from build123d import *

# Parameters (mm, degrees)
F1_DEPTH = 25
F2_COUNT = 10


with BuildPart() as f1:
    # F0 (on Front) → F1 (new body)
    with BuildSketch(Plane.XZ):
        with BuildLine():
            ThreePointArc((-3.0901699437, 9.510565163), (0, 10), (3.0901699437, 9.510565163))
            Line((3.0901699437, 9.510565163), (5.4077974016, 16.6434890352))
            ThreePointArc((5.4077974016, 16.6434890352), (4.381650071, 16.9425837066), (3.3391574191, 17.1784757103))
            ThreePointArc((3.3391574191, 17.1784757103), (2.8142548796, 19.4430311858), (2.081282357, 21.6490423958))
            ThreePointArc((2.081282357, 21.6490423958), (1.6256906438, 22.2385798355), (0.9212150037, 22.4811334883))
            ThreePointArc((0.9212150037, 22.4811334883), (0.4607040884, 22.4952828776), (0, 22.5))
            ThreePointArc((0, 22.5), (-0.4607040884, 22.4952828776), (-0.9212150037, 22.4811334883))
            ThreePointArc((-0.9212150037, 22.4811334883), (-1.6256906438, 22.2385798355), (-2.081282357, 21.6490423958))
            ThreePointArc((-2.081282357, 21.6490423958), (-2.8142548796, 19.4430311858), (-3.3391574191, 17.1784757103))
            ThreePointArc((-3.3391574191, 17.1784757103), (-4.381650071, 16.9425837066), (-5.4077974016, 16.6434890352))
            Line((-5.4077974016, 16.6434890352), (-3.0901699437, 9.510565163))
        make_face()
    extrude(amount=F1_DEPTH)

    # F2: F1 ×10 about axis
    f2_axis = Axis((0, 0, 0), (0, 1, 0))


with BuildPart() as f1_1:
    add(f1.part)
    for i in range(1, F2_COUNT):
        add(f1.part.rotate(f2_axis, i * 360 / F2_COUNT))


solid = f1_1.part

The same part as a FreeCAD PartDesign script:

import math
import FreeCAD as App
import Part
import Sketcher

V = App.Vector
Q = App.Units.Quantity

doc = App.newDocument("Part")
body = doc.addObject("PartDesign::Body", "Body")

sketch1 = doc.addObject("Sketcher::SketchObject", "Sketch")
body.addObject(sketch1)
sketch1.AttachmentSupport = (doc.XZ_Plane, [""])
sketch1.MapMode = "FlatFace"
sketch1.addGeometry(Part.ArcOfCircle(Part.Circle(V(0, 0, 0), V(0, 0, 1), 10), math.radians(72), math.radians(108)), False)
sketch1.addGeometry(Part.LineSegment(V(3.1, 9.5, 0), V(5.4, 16.6, 0)), False)
sketch1.addGeometry(Part.ArcOfCircle(Part.Circle(V(0, 0, 0), V(0, 0, 1), 17.5), math.radians(72), math.radians(79)), False)
sketch1.addGeometry(Part.ArcOfCircle(Part.Circle(V(-21.3, 12.7, 0), V(0, 0, 1), 25), math.radians(10.39), math.radians(21.04)), False)
sketch1.addGeometry(Part.ArcOfCircle(Part.Circle(V(0.9, 21.2, 0), V(0, 0, 1), 1.3), math.radians(21), math.radians(88)), False)
sketch1.addGeometry(Part.ArcOfCircle(Part.Circle(V(0, 0, 0), V(0, 0, 1), 22.5), math.radians(87.65), math.radians(90)), False)
sketch1.addGeometry(Part.ArcOfCircle(Part.Circle(V(0, 0, 0), V(0, 0, 1), 22.5), math.radians(90), math.radians(92.35)), False)
sketch1.addGeometry(Part.ArcOfCircle(Part.Circle(V(-0.9, 21.2, 0), V(0, 0, 1), 1.3), math.radians(92), math.radians(159)), False)
sketch1.addGeometry(Part.ArcOfCircle(Part.Circle(V(21.3, 12.7, 0), V(0, 0, 1), 25), math.radians(158.96), math.radians(169.61)), False)
sketch1.addGeometry(Part.ArcOfCircle(Part.Circle(V(0, 0, 0), V(0, 0, 1), 17.5), math.radians(101), math.radians(108)), False)
sketch1.addGeometry(Part.LineSegment(V(-5.4, 16.6, 0), V(-3.1, 9.5, 0)), False)
sketch1.addConstraint(Sketcher.Constraint("Coincident", 0, 1, 1, 1))
sketch1.addConstraint(Sketcher.Constraint("Coincident", 1, 2, 2, 1))
sketch1.addConstraint(Sketcher.Constraint("Coincident", 2, 2, 3, 1))
sketch1.addConstraint(Sketcher.Constraint("Tangent", 3, 2, 4, 1))
sketch1.addConstraint(Sketcher.Constraint("Tangent", 4, 2, 5, 1))
sketch1.addConstraint(Sketcher.Constraint("Tangent", 5, 2, 6, 1))
sketch1.addConstraint(Sketcher.Constraint("Tangent", 6, 2, 7, 1))
sketch1.addConstraint(Sketcher.Constraint("Tangent", 7, 2, 8, 1))
sketch1.addConstraint(Sketcher.Constraint("Coincident", 8, 2, 9, 1))
sketch1.addConstraint(Sketcher.Constraint("Coincident", 9, 2, 10, 1))
sketch1.addConstraint(Sketcher.Constraint("Coincident", 10, 2, 0, 2))
sketch1.addConstraint(Sketcher.Constraint("Coincident", 0, 3, -1, 1))
sketch1.addConstraint(Sketcher.Constraint("Coincident", 2, 3, -1, 1))
sketch1.addConstraint(Sketcher.Constraint("Coincident", 5, 3, -1, 1))
sketch1.addConstraint(Sketcher.Constraint("Coincident", 9, 3, -1, 1))
sketch1.addConstraint(Sketcher.Constraint("Equal", 5, 6))
sketch1.addConstraint(Sketcher.Constraint("Equal", 4, 7))
sketch1.addConstraint(Sketcher.Constraint("Equal", 3, 8))
sketch1.addConstraint(Sketcher.Constraint("Equal", 2, 9))
sketch1.addConstraint(Sketcher.Constraint("Symmetric", 3, 3, 8, 3, -2))
sketch1.addConstraint(Sketcher.Constraint("PointOnObject", 5, 2, -2))
sketch1.addConstraint(Sketcher.Constraint("Horizontal", 1, 2, 9, 2))
sketch1.addConstraint(Sketcher.Constraint("Horizontal", 0, 1, 10, 2))
sketch1.addConstraint(Sketcher.Constraint("Radius", 0, Q("10 mm")))
sketch1.addConstraint(Sketcher.Constraint("Radius", 3, Q("25 mm")))
sketch1.addConstraint(Sketcher.Constraint("Radius", 2, Q("17.5 mm")))
sketch1.addConstraint(Sketcher.Constraint("Radius", 4, Q("1.3 mm")))
sketch1.addConstraint(Sketcher.Constraint("Radius", 5, Q("22.5 mm")))
sketch1.addConstraint(Sketcher.Constraint("Angle", 1, Q("72 deg")))
sketch1.addConstraint(Sketcher.Constraint("DistanceX", -1, 1, 4, 3, Q("0.867989 mm")))
sketch1.addConstraint(Sketcher.Constraint("DistanceX", -1, 1, 0, 1, Q("3.09017 mm")))
sketch1.addConstraint(Sketcher.Constraint("DistanceX", 4, 3, 8, 3, Q("20.383288 mm")))
pad1 = doc.addObject("PartDesign::Pad", "Pad")
body.addObject(pad1)
pad1.Profile = sketch1
pad1.Length = 25
body2 = doc.addObject("PartDesign::Body", "Body001")
doc.recompute()

body2.BaseFeature = body
doc.recompute()

body3 = doc.addObject("PartDesign::Body", "Body002")
body3.BaseFeature = body
body3.Placement = App.Placement(V(0, 0, 0), App.Rotation(V(0, 1, 0), 36))
boolean = doc.addObject("PartDesign::Boolean", "Boolean")
body2.addObject(boolean)
boolean.Type = "Fuse"
boolean.addObjects([body3])
doc.recompute()

body4 = doc.addObject("PartDesign::Body", "Body003")
body4.BaseFeature = body
body4.Placement = App.Placement(V(0, 0, 0), App.Rotation(V(0, 1, 0), 72))
boolean2 = doc.addObject("PartDesign::Boolean", "Boolean001")
body2.addObject(boolean2)
boolean2.Type = "Fuse"
boolean2.addObjects([body4])
doc.recompute()

body5 = doc.addObject("PartDesign::Body", "Body004")
body5.BaseFeature = body
body5.Placement = App.Placement(V(0, 0, 0), App.Rotation(V(0, 1, 0), 108))
boolean3 = doc.addObject("PartDesign::Boolean", "Boolean002")
body2.addObject(boolean3)
boolean3.Type = "Fuse"
boolean3.addObjects([body5])
doc.recompute()

body6 = doc.addObject("PartDesign::Body", "Body005")
body6.BaseFeature = body
body6.Placement = App.Placement(V(0, 0, 0), App.Rotation(V(0, 1, 0), 144))
boolean4 = doc.addObject("PartDesign::Boolean", "Boolean003")
body2.addObject(boolean4)
boolean4.Type = "Fuse"
boolean4.addObjects([body6])
doc.recompute()

body7 = doc.addObject("PartDesign::Body", "Body006")
body7.BaseFeature = body
body7.Placement = App.Placement(V(0, 0, 0), App.Rotation(V(0, 1, 0), 180))
boolean5 = doc.addObject("PartDesign::Boolean", "Boolean004")
body2.addObject(boolean5)
boolean5.Type = "Fuse"
boolean5.addObjects([body7])
doc.recompute()

body8 = doc.addObject("PartDesign::Body", "Body007")
body8.BaseFeature = body
body8.Placement = App.Placement(V(0, 0, 0), App.Rotation(V(0, 1, 0), 216))
boolean6 = doc.addObject("PartDesign::Boolean", "Boolean005")
body2.addObject(boolean6)
boolean6.Type = "Fuse"
boolean6.addObjects([body8])
doc.recompute()

body9 = doc.addObject("PartDesign::Body", "Body008")
body9.BaseFeature = body
body9.Placement = App.Placement(V(0, 0, 0), App.Rotation(V(0, 1, 0), 252))
boolean7 = doc.addObject("PartDesign::Boolean", "Boolean006")
body2.addObject(boolean7)
boolean7.Type = "Fuse"
boolean7.addObjects([body9])
doc.recompute()

body10 = doc.addObject("PartDesign::Body", "Body009")
body10.BaseFeature = body
body10.Placement = App.Placement(V(0, 0, 0), App.Rotation(V(0, 1, 0), 288))
boolean8 = doc.addObject("PartDesign::Boolean", "Boolean007")
body2.addObject(boolean8)
boolean8.Type = "Fuse"
boolean8.addObjects([body10])
doc.recompute()

body.Placement = App.Placement(V(0, 0, 0), App.Rotation(V(0, 1, 0), 324))
boolean9 = doc.addObject("PartDesign::Boolean", "Boolean008")
body2.addObject(boolean9)
boolean9.Type = "Fuse"
boolean9.addObjects([body])

doc.recompute()
